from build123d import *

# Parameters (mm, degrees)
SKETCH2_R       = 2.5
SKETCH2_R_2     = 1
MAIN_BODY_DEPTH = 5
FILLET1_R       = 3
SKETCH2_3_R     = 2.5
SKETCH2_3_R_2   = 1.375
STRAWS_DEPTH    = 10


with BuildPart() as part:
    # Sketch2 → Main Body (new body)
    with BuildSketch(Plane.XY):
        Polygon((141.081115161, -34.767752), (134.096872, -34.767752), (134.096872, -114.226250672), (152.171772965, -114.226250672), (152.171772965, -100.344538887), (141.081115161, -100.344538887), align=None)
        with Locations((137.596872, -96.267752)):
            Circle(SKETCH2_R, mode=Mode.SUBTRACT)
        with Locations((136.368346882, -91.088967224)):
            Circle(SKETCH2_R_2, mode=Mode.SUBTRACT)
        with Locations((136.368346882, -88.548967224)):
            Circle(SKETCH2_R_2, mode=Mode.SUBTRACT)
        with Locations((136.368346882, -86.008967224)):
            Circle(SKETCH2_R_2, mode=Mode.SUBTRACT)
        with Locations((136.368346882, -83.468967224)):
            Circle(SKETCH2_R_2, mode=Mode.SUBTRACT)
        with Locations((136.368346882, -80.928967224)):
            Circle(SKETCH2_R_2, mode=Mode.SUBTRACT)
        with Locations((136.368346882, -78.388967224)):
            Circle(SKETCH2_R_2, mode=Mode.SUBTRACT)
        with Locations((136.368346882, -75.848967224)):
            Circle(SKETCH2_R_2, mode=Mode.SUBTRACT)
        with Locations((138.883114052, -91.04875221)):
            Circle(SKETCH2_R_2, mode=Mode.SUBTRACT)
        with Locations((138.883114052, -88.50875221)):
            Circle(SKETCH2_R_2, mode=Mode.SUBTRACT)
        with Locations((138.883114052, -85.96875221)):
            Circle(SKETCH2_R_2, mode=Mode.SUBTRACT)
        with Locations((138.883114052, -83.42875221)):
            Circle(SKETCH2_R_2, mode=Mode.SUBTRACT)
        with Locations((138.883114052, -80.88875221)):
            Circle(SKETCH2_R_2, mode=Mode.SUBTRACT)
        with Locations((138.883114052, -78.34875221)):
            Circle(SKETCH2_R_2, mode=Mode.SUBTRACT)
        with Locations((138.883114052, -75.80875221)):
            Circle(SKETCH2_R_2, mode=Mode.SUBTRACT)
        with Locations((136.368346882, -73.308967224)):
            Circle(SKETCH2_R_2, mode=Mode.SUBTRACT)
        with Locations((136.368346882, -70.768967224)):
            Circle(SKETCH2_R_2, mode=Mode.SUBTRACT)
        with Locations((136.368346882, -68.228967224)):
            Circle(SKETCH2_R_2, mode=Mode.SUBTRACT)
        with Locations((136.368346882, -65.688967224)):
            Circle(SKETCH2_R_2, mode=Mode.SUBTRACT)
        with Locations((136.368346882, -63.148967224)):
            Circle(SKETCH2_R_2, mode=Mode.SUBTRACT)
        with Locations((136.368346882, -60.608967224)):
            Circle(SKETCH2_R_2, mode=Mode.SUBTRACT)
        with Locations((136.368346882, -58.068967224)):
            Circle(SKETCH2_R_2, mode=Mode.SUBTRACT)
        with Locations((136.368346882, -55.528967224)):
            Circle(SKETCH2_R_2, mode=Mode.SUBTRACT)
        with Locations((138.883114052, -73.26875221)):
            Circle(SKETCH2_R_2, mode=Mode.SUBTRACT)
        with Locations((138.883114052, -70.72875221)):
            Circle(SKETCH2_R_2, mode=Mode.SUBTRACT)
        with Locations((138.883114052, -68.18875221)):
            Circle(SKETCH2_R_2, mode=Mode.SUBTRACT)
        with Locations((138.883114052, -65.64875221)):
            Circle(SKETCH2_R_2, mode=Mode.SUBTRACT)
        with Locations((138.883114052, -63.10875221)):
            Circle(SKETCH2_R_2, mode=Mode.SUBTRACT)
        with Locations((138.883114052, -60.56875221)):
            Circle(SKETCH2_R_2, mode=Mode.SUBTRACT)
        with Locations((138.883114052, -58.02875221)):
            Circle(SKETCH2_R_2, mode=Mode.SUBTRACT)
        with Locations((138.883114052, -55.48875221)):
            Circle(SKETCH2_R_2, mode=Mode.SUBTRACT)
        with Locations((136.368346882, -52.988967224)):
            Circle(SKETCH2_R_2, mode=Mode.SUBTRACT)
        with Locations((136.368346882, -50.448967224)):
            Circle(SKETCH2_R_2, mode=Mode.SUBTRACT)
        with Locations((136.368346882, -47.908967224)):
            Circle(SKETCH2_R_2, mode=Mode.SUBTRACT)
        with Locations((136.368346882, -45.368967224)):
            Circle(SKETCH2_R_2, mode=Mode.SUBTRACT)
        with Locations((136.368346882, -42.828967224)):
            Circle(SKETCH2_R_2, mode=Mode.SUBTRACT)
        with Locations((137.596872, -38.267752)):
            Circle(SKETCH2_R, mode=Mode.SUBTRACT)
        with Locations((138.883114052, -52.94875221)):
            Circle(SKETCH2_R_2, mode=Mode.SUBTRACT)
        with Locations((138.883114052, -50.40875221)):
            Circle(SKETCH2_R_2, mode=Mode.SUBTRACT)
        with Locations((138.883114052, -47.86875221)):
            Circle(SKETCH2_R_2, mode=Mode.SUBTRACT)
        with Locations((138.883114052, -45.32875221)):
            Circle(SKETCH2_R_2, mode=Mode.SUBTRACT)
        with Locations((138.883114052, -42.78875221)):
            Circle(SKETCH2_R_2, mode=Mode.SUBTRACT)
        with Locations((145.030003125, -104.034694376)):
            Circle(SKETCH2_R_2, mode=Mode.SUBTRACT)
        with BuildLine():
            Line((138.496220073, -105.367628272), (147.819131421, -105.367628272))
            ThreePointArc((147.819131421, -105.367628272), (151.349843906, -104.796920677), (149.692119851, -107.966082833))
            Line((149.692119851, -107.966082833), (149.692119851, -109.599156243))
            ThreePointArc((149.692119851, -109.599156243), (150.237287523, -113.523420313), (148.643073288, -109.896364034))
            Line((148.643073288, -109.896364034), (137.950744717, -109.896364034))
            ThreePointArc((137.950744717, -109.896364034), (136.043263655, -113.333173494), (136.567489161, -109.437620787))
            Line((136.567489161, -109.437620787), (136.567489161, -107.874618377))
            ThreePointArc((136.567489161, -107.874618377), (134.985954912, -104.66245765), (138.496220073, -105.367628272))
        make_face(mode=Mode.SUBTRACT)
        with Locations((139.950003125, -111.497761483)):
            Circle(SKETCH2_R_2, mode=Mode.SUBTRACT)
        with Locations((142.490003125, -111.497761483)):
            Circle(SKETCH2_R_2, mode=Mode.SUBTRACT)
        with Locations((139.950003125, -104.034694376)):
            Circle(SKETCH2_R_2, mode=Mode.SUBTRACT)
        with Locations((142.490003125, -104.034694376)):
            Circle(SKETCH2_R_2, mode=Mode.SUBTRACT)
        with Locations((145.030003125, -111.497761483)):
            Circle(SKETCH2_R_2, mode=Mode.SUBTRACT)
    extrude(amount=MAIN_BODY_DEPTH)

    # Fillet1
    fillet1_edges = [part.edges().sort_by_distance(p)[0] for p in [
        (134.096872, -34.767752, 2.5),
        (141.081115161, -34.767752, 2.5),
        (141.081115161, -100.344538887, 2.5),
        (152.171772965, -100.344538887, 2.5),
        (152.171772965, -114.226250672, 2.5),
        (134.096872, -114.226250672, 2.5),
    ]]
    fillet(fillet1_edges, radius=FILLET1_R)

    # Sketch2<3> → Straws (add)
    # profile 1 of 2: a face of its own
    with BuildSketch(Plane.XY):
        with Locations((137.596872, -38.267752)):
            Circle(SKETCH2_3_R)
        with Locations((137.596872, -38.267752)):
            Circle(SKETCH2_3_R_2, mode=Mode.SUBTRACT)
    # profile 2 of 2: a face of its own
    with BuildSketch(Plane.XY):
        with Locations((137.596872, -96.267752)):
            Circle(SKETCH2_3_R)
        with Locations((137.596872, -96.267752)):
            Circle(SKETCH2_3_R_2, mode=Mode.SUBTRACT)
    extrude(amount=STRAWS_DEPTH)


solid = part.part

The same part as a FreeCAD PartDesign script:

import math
import FreeCAD as App
import Part
import Sketcher
from FreeCAD import Vector
Q = App.Units.Quantity


def edges_at(feature, points):
    """Names of the edges that pass closest to the given points."""
    edges = feature.Shape.Edges
    near = lambda p: min(range(len(edges)), key=lambda i: edges[i].distToShape(Part.Vertex(*p))[0])
    return sorted({f"Edge{near(p) + 1}" for p in points})


def add_polygon(sketch, points):
    """Adds a closed chain of lines whose ends are joined by coincident constraints."""
    first, n = sketch.GeometryCount, len(points)
    for a, b in zip(points, points[1:] + points[:1]):
        sketch.addGeometry(Part.LineSegment(App.Vector(*a, 0), App.Vector(*b, 0)), False)
    for i in range(n):
        sketch.addConstraint(Sketcher.Constraint("Coincident", first + i, 2, first + (i + 1) % n, 1))

doc = App.newDocument("Part")
body = doc.addObject("PartDesign::Body", "Body")

# Sketch on XY plane
sketch1 = body.newObject("Sketcher::SketchObject", "Sketch")
sketch1.AttachmentSupport = (doc.getObject("XY_Plane"), [""])
sketch1.MapMode = "FlatFace"
add_polygon(sketch1, [(141.1, -34.8), (134.1, -34.8), (134.1, -114.2), (152.2, -114.2), (152.2, -100.3), (141.1, -100.3)])  # lines 0-5
sketch1.addGeometry(Part.Circle(Vector(137.6, -96.3, 0), Vector(0, 0, 1), 2.5), False)  # 6
sketch1.addGeometry(Part.Circle(Vector(140, -111.5, 0), Vector(0, 0, 1), 1), False)  # 7
sketch1.addGeometry(Part.Circle(Vector(140, -104, 0), Vector(0, 0, 1), 1), False)  # 8
sketch1.addGeometry(Part.Circle(Vector(142.5, -111.5, 0), Vector(0, 0, 1), 1), False)  # 9
sketch1.addGeometry(Part.Circle(Vector(142.5, -104, 0), Vector(0, 0, 1), 1), False)  # 10
sketch1.addGeometry(Part.Circle(Vector(136.4, -91.1, 0), Vector(0, 0, 1), 1), False)  # 11
sketch1.addGeometry(Part.Circle(Vector(136.4, -88.5, 0), Vector(0, 0, 1), 1), False)  # 12
sketch1.addGeometry(Part.Circle(Vector(136.4, -86, 0), Vector(0, 0, 1), 1), False)  # 13
sketch1.addGeometry(Part.Circle(Vector(136.4, -83.5, 0), Vector(0, 0, 1), 1), False)  # 14
sketch1.addGeometry(Part.Circle(Vector(136.4, -80.9, 0), Vector(0, 0, 1), 1), False)  # 15
sketch1.addGeometry(Part.Circle(Vector(136.4, -78.4, 0), Vector(0, 0, 1), 1), False)  # 16
sketch1.addGeometry(Part.Circle(Vector(136.4, -75.8, 0), Vector(0, 0, 1), 1), False)  # 17
sketch1.addGeometry(Part.Circle(Vector(138.9, -91, 0), Vector(0, 0, 1), 1), False)  # 18
sketch1.addGeometry(Part.Circle(Vector(138.9, -88.5, 0), Vector(0, 0, 1), 1), False)  # 19
sketch1.addGeometry(Part.Circle(Vector(138.9, -86, 0), Vector(0, 0, 1), 1), False)  # 20
sketch1.addGeometry(Part.Circle(Vector(138.9, -83.4, 0), Vector(0, 0, 1), 1), False)  # 21
sketch1.addGeometry(Part.Circle(Vector(138.9, -80.9, 0), Vector(0, 0, 1), 1), False)  # 22
sketch1.addGeometry(Part.Circle(Vector(138.9, -78.3, 0), Vector(0, 0, 1), 1), False)  # 23
sketch1.addGeometry(Part.Circle(Vector(138.9, -75.8, 0), Vector(0, 0, 1), 1), False)  # 24
sketch1.addGeometry(Part.ArcOfCircle(Part.Circle(Vector(136.6, -105.9, 0), Vector(0, 0, 1), 2), math.radians(15), math.radians(270)), False)  # 25
sketch1.addGeometry(Part.LineSegment(Vector(138.5, -105.4, 0), Vector(147.8, -105.4, 0)), False)  # 26
sketch1.addGeometry(Part.ArcOfCircle(Part.Circle(Vector(149.7, -106, 0), Vector(0, 0, 1), 2), math.radians(-91), math.radians(163)), False)  # 27
sketch1.addGeometry(Part.LineSegment(Vector(149.7, -108, 0), Vector(149.7, -109.6, 0)), False)  # 28
sketch1.addGeometry(Part.ArcOfCircle(Part.Circle(Vector(149.7, -111.6, 0), Vector(0, 0, 1), 2), math.radians(122), math.radians(450)), False)  # 29
sketch1.addGeometry(Part.LineSegment(Vector(148.6, -109.9, 0), Vector(138, -109.9, 0)), False)  # 30
sketch1.addGeometry(Part.ArcOfCircle(Part.Circle(Vector(136.7, -111.4, 0), Vector(0, 0, 1), 2), math.radians(93), math.radians(410)), False)  # 31
sketch1.addGeometry(Part.LineSegment(Vector(136.6, -109.4, 0), Vector(136.6, -107.9, 0)), False)  # 32
sketch1.addGeometry(Part.Circle(Vector(145, -111.5, 0), Vector(0, 0, 1), 1), False)  # 33
sketch1.addGeometry(Part.Circle(Vector(145, -104, 0), Vector(0, 0, 1), 1), False)  # 34
sketch1.addGeometry(Part.Circle(Vector(136.4, -73.3, 0), Vector(0, 0, 1), 1), False)  # 35
sketch1.addGeometry(Part.Circle(Vector(136.4, -70.8, 0), Vector(0, 0, 1), 1), False)  # 36
sketch1.addGeometry(Part.Circle(Vector(136.4, -68.2, 0), Vector(0, 0, 1), 1), False)  # 37
sketch1.addGeometry(Part.Circle(Vector(136.4, -65.7, 0), Vector(0, 0, 1), 1), False)  # 38
sketch1.addGeometry(Part.Circle(Vector(136.4, -63.1, 0), Vector(0, 0, 1), 1), False)  # 39
sketch1.addGeometry(Part.Circle(Vector(136.4, -60.6, 0), Vector(0, 0, 1), 1), False)  # 40
sketch1.addGeometry(Part.Circle(Vector(136.4, -58.1, 0), Vector(0, 0, 1), 1), False)  # 41
sketch1.addGeometry(Part.Circle(Vector(136.4, -55.5, 0), Vector(0, 0, 1), 1), False)  # 42
sketch1.addGeometry(Part.Circle(Vector(138.9, -73.3, 0), Vector(0, 0, 1), 1), False)  # 43
sketch1.addGeometry(Part.Circle(Vector(138.9, -70.7, 0), Vector(0, 0, 1), 1), False)  # 44
sketch1.addGeometry(Part.Circle(Vector(138.9, -68.2, 0), Vector(0, 0, 1), 1), False)  # 45
sketch1.addGeometry(Part.Circle(Vector(138.9, -65.6, 0), Vector(0, 0, 1), 1), False)  # 46
sketch1.addGeometry(Part.Circle(Vector(138.9, -63.1, 0), Vector(0, 0, 1), 1), False)  # 47
sketch1.addGeometry(Part.Circle(Vector(138.9, -60.6, 0), Vector(0, 0, 1), 1), False)  # 48
sketch1.addGeometry(Part.Circle(Vector(138.9, -58, 0), Vector(0, 0, 1), 1), False)  # 49
sketch1.addGeometry(Part.Circle(Vector(138.9, -55.5, 0), Vector(0, 0, 1), 1), False)  # 50
sketch1.addGeometry(Part.Circle(Vector(136.4, -53, 0), Vector(0, 0, 1), 1), False)  # 51
sketch1.addGeometry(Part.Circle(Vector(136.4, -50.4, 0), Vector(0, 0, 1), 1), False)  # 52
sketch1.addGeometry(Part.Circle(Vector(136.4, -47.9, 0), Vector(0, 0, 1), 1), False)  # 53
sketch1.addGeometry(Part.Circle(Vector(136.4, -45.4, 0), Vector(0, 0, 1), 1), False)  # 54
sketch1.addGeometry(Part.Circle(Vector(136.4, -42.8, 0), Vector(0, 0, 1), 1), False)  # 55
sketch1.addGeometry(Part.Circle(Vector(137.6, -38.3, 0), Vector(0, 0, 1), 2.5), False)  # 56
sketch1.addGeometry(Part.Circle(Vector(138.9, -52.9, 0), Vector(0, 0, 1), 1), False)  # 57
sketch1.addGeometry(Part.Circle(Vector(138.9, -50.4, 0), Vector(0, 0, 1), 1), False)  # 58
sketch1.addGeometry(Part.Circle(Vector(138.9, -47.9, 0), Vector(0, 0, 1), 1), False)  # 59
sketch1.addGeometry(Part.Circle(Vector(138.9, -45.3, 0), Vector(0, 0, 1), 1), False)  # 60
sketch1.addGeometry(Part.Circle(Vector(138.9, -42.8, 0), Vector(0, 0, 1), 1), False)  # 61
sketch1.addConstraint([
    Sketcher.Constraint("Coincident", 25, 1, 26, 1),
    Sketcher.Constraint("Coincident", 26, 2, 27, 2),
    Sketcher.Constraint("Coincident", 27, 1, 28, 1),
    Sketcher.Constraint("Coincident", 28, 2, 29, 2),
    Sketcher.Constraint("Coincident", 29, 1, 30, 1),
    Sketcher.Constraint("Coincident", 30, 2, 31, 2),
    Sketcher.Constraint("Coincident", 31, 1, 32, 1),
    Sketcher.Constraint("Coincident", 32, 2, 25, 2),
    Sketcher.Constraint("Horizontal", 0),
    Sketcher.Constraint("Vertical", 1),
    Sketcher.Constraint("Horizontal", 2),
    Sketcher.Constraint("Vertical", 3),
    Sketcher.Constraint("Horizontal", 4),
    Sketcher.Constraint("Vertical", 5),
    Sketcher.Constraint("Horizontal", 26),
    Sketcher.Constraint("Vertical", 28),
    Sketcher.Constraint("Horizontal", 30),
    Sketcher.Constraint("Vertical", 32),
    Sketcher.Constraint("Equal", 7, 8),
    Sketcher.Constraint("Equal", 8, 9),
    Sketcher.Constraint("Equal", 9, 10),
    Sketcher.Constraint("Equal", 10, 11),
    Sketcher.Constraint("Equal", 11, 12),
    Sketcher.Constraint("Equal", 12, 13),
    Sketcher.Constraint("Equal", 13, 14),
    Sketcher.Constraint("Equal", 14, 15),
    Sketcher.Constraint("Equal", 15, 16),
    Sketcher.Constraint("Equal", 16, 17),
    Sketcher.Constraint("Equal", 17, 18),
    Sketcher.Constraint("Equal", 18, 19),
    Sketcher.Constraint("Equal", 19, 20),
    Sketcher.Constraint("Equal", 20, 21),
    Sketcher.Constraint("Equal", 21, 22),
    Sketcher.Constraint("Equal", 22, 23),
    Sketcher.Constraint("Equal", 23, 24),
    Sketcher.Constraint("Equal", 27, 29),
    Sketcher.Constraint("Equal", 29, 31),
    Sketcher.Constraint("Equal", 24, 33),
    Sketcher.Constraint("Equal", 33, 34),
    Sketcher.Constraint("Equal", 34, 35),
    Sketcher.Constraint("Equal", 35, 36),
    Sketcher.Constraint("Equal", 36, 37),
    Sketcher.Constraint("Equal", 37, 38),
    Sketcher.Constraint("Equal", 38, 39),
    Sketcher.Constraint("Equal", 39, 40),
    Sketcher.Constraint("Equal", 40, 41),
    Sketcher.Constraint("Equal", 41, 42),
    Sketcher.Constraint("Equal", 42, 43),
    Sketcher.Constraint("Equal", 43, 44),
    Sketcher.Constraint("Equal", 44, 45),
    Sketcher.Constraint("Equal", 45, 46),
    Sketcher.Constraint("Equal", 46, 47),
    Sketcher.Constraint("Equal", 47, 48),
    Sketcher.Constraint("Equal", 48, 49),
    Sketcher.Constraint("Equal", 49, 50),
    Sketcher.Constraint("Equal", 50, 51),
    Sketcher.Constraint("Equal", 51, 52),
    Sketcher.Constraint("Equal", 52, 53),
    Sketcher.Constraint("Equal", 53, 54),
    Sketcher.Constraint("Equal", 54, 55),
    Sketcher.Constraint("Equal", 6, 56),
    Sketcher.Constraint("Equal", 55, 57),
    Sketcher.Constraint("Equal", 57, 58),
    Sketcher.Constraint("Equal", 58, 59),
    Sketcher.Constraint("Equal", 59, 60),
    Sketcher.Constraint("Equal", 60, 61),
    Sketcher.Constraint("Horizontal", 7, 3, 9, 3),
    Sketcher.Constraint("Horizontal", 8, 3, 10, 3),
    Sketcher.Constraint("Horizontal", 9, 3, 33, 3),
    Sketcher.Constraint("Horizontal", 10, 3, 34, 3),
    Sketcher.Constraint("Vertical", 7, 3, 8, 3),
    Sketcher.Constraint("Vertical", 9, 3, 10, 3),
    Sketcher.Constraint("Vertical", 11, 3, 12, 3),
    Sketcher.Constraint("Vertical", 12, 3, 13, 3),
    Sketcher.Constraint("Vertical", 13, 3, 14, 3),
    Sketcher.Constraint("Vertical", 14, 3, 15, 3),
    Sketcher.Constraint("Vertical", 15, 3, 16, 3),
    Sketcher.Constraint("Vertical", 16, 3, 17, 3),
    Sketcher.Constraint("Vertical", 18, 3, 19, 3),
    Sketcher.Constraint("Vertical", 19, 3, 20, 3),
    Sketcher.Constraint("Vertical", 20, 3, 21, 3),
    Sketcher.Constraint("Vertical", 21, 3, 22, 3),
    Sketcher.Constraint("Vertical", 22, 3, 23, 3),
    Sketcher.Constraint("Vertical", 23, 3, 24, 3),
    Sketcher.Constraint("Vertical", 33, 3, 34, 3),
    Sketcher.Constraint("Vertical", 17, 3, 35, 3),
    Sketcher.Constraint("Vertical", 35, 3, 36, 3),
    Sketcher.Constraint("Vertical", 36, 3, 37, 3),
    Sketcher.Constraint("Vertical", 37, 3, 38, 3),
    Sketcher.Constraint("Vertical", 38, 3, 39, 3),
    Sketcher.Constraint("Vertical", 39, 3, 40, 3),
    Sketcher.Constraint("Vertical", 40, 3, 41, 3),
    Sketcher.Constraint("Vertical", 41, 3, 42, 3),
    Sketcher.Constraint("Vertical", 24, 3, 43, 3),
    Sketcher.Constraint("Vertical", 43, 3, 44, 3),
    Sketcher.Constraint("Vertical", 44, 3, 45, 3),
    Sketcher.Constraint("Vertical", 45, 3, 46, 3),
    Sketcher.Constraint("Vertical", 46, 3, 47, 3),
    Sketcher.Constraint("Vertical", 47, 3, 48, 3),
    Sketcher.Constraint("Vertical", 48, 3, 49, 3),
    Sketcher.Constraint("Vertical", 49, 3, 50, 3),
    Sketcher.Constraint("Vertical", 42, 3, 51, 3),
    Sketcher.Constraint("Vertical", 51, 3, 52, 3),
    Sketcher.Constraint("Vertical", 52, 3, 53, 3),
    Sketcher.Constraint("Vertical", 53, 3, 54, 3),
    Sketcher.Constraint("Vertical", 54, 3, 55, 3),
    Sketcher.Constraint("Vertical", 6, 3, 56, 3),
    Sketcher.Constraint("Vertical", 50, 3, 57, 3),
    Sketcher.Constraint("Vertical", 57, 3, 58, 3),
    Sketcher.Constraint("Vertical", 58, 3, 59, 3),
    Sketcher.Constraint("Vertical", 59, 3, 60, 3),
    Sketcher.Constraint("Vertical", 60, 3, 61, 3),
    Sketcher.Constraint("Vertical", 29, 3, 27, 1),
    Sketcher.Constraint("Vertical", 25, 3, 31, 1),
    Sketcher.Constraint("Diameter", 6, Q("5 mm")),
    Sketcher.Constraint("Diameter", 7, Q("2 mm")),
    Sketcher.Constraint("Radius", 27, Q("2 mm")),
    Sketcher.Constraint("Radius", 25, Q("1.995421 mm")),
    Sketcher.Constraint("DistanceX", 2, 1, 2, 2, Q("18.074901 mm")),
    Sketcher.Constraint("DistanceY", 1, 2, 1, 1, Q("79.458499 mm")),
    Sketcher.Constraint("DistanceX", 26, 1, 26, 2, Q("9.322911 mm")),
    Sketcher.Constraint("DistanceX", 30, 2, 30, 1, Q("10.692329 mm")),
    Sketcher.Constraint("DistanceY", 3, 1, 3, 2, Q("13.881712 mm")),
    Sketcher.Constraint("DistanceX", 0, 2, 0, 1, Q("6.984243 mm")),
    Sketcher.Constraint("DistanceY", 28, 2, 28, 1, Q("1.633073 mm")),
    Sketcher.Constraint("DistanceY", 32, 1, 32, 2, Q("1.563002 mm")),
    Sketcher.Constraint("DistanceX", -1, 1, 6, 3, Q("137.596872 mm")),
    Sketcher.Constraint("DistanceY", 6, 3, -1, 1, Q("96.267752 mm")),
    Sketcher.Constraint("DistanceY", 7, 3, -1, 1, Q("111.497761 mm")),
    Sketcher.Constraint("DistanceX", -1, 1, 25, 3, Q("136.567489 mm")),
    Sketcher.Constraint("DistanceX", -1, 1, 29, 3, Q("149.69212 mm")),
    Sketcher.Constraint("DistanceX", -1, 1, 0, 2, Q("134.096872 mm")),
    Sketcher.Constraint("DistanceY", 1, 2, -1, 1, Q("114.226251 mm")),
    Sketcher.Constraint("DistanceX", -1, 1, 25, 1, Q("138.49622 mm")),
    Sketcher.Constraint("DistanceY", 25, 1, -1, 1, Q("105.367628 mm")),
    Sketcher.Constraint("DistanceX", -1, 1, 7, 3, Q("139.950003 mm")),
    Sketcher.Constraint("DistanceY", 8, 3, -1, 1, Q("104.034694 mm")),
    Sketcher.Constraint("DistanceX", -1, 1, 9, 3, Q("142.490003 mm")),
    Sketcher.Constraint("DistanceX", -1, 1, 11, 3, Q("136.368347 mm")),
    Sketcher.Constraint("DistanceY", 11, 3, -1, 1, Q("91.088967 mm")),
    Sketcher.Constraint("DistanceY", 12, 3, -1, 1, Q("88.548967 mm")),
    Sketcher.Constraint("DistanceY", 13, 3, -1, 1, Q("86.008967 mm")),
    Sketcher.Constraint("DistanceY", 14, 3, -1, 1, Q("83.468967 mm")),
    Sketcher.Constraint("DistanceY", 15, 3, -1, 1, Q("80.928967 mm")),
    Sketcher.Constraint("DistanceY", 16, 3, -1, 1, Q("78.388967 mm")),
    Sketcher.Constraint("DistanceY", 17, 3, -1, 1, Q("75.848967 mm")),
    Sketcher.Constraint("DistanceX", -1, 1, 18, 3, Q("138.883114 mm")),
    Sketcher.Constraint("DistanceY", 18, 3, -1, 1, Q("91.048752 mm")),
    Sketcher.Constraint("DistanceY", 19, 3, -1, 1, Q("88.508752 mm")),
    Sketcher.Constraint("DistanceY", 20, 3, -1, 1, Q("85.968752 mm")),
    Sketcher.Constraint("DistanceY", 21, 3, -1, 1, Q("83.428752 mm")),
    Sketcher.Constraint("DistanceY", 22, 3, -1, 1, Q("80.888752 mm")),
    Sketcher.Constraint("DistanceY", 23, 3, -1, 1, Q("78.348752 mm")),
    Sketcher.Constraint("DistanceY", 24, 3, -1, 1, Q("75.808752 mm")),
    Sketcher.Constraint("DistanceX", -1, 1, 27, 3, Q("149.727398 mm")),
    Sketcher.Constraint("DistanceX", -1, 1, 31, 3, Q("136.672826 mm")),
    Sketcher.Constraint("DistanceX", -1, 1, 33, 3, Q("145.030003 mm")),
    Sketcher.Constraint("DistanceY", 35, 3, -1, 1, Q("73.308967 mm")),
    Sketcher.Constraint("DistanceY", 36, 3, -1, 1, Q("70.768967 mm")),
    Sketcher.Constraint("DistanceY", 37, 3, -1, 1, Q("68.228967 mm")),
    Sketcher.Constraint("DistanceY", 38, 3, -1, 1, Q("65.688967 mm")),
    Sketcher.Constraint("DistanceY", 39, 3, -1, 1, Q("63.148967 mm")),
    Sketcher.Constraint("DistanceY", 40, 3, -1, 1, Q("60.608967 mm")),
    Sketcher.Constraint("DistanceY", 41, 3, -1, 1, Q("58.068967 mm")),
    Sketcher.Constraint("DistanceY", 42, 3, -1, 1, Q("55.528967 mm")),
    Sketcher.Constraint("DistanceY", 43, 3, -1, 1, Q("73.268752 mm")),
    Sketcher.Constraint("DistanceY", 44, 3, -1, 1, Q("70.728752 mm")),
    Sketcher.Constraint("DistanceY", 45, 3, -1, 1, Q("68.188752 mm")),
    Sketcher.Constraint("DistanceY", 46, 3, -1, 1, Q("65.648752 mm")),
    Sketcher.Constraint("DistanceY", 47, 3, -1, 1, Q("63.108752 mm")),
    Sketcher.Constraint("DistanceY", 48, 3, -1, 1, Q("60.568752 mm")),
    Sketcher.Constraint("DistanceY", 49, 3, -1, 1, Q("58.028752 mm")),
    Sketcher.Constraint("DistanceY", 50, 3, -1, 1, Q("55.488752 mm")),
    Sketcher.Constraint("DistanceY", 51, 3, -1, 1, Q("52.988967 mm")),
    Sketcher.Constraint("DistanceY", 52, 3, -1, 1, Q("50.448967 mm")),
    Sketcher.Constraint("DistanceY", 53, 3, -1, 1, Q("47.908967 mm")),
    Sketcher.Constraint("DistanceY", 54, 3, -1, 1, Q("45.368967 mm")),
    Sketcher.Constraint("DistanceY", 55, 3, -1, 1, Q("42.828967 mm")),
    Sketcher.Constraint("DistanceY", 56, 3, -1, 1, Q("38.267752 mm")),
    Sketcher.Constraint("DistanceY", 57, 3, -1, 1, Q("52.948752 mm")),
    Sketcher.Constraint("DistanceY", 58, 3, -1, 1, Q("50.408752 mm")),
    Sketcher.Constraint("DistanceY", 59, 3, -1, 1, Q("47.868752 mm")),
    Sketcher.Constraint("DistanceY", 60, 3, -1, 1, Q("45.328752 mm")),
    Sketcher.Constraint("DistanceY", 61, 3, -1, 1, Q("42.788752 mm")),
])
pad1 = body.newObject("PartDesign::Pad", "Pad")
pad1.Profile = sketch1
pad1.Length = 5
doc.recompute()

fillet = body.newObject("PartDesign::Fillet", "Fillet")
fillet.Base = (pad1, edges_at(pad1, [
    (134.097, -34.768, 2.5),
    (141.081, -34.768, 2.5),
    (141.081, -100.345, 2.5),
    (152.172, -100.345, 2.5),
    (152.172, -114.226, 2.5),
    (134.097, -114.226, 2.5),
]))
fillet.Radius = 3

# Sketch on XY plane
sketch2 = body.newObject("Sketcher::SketchObject", "Sketch001")
sketch2.AttachmentSupport = (doc.getObject("XY_Plane"), [""])
sketch2.MapMode = "FlatFace"
sketch2.addGeometry([
    Part.Circle(Vector(137.6, -38.3, 0), Vector(0, 0, 1), 2.5),
    Part.Circle(Vector(137.6, -38.3, 0), Vector(0, 0, 1), 1.4),
    Part.Circle(Vector(137.6, -96.3, 0), Vector(0, 0, 1), 2.5),
    Part.Circle(Vector(137.6, -96.3, 0), Vector(0, 0, 1), 1.4),
], False)
sketch2.addConstraint([
    Sketcher.Constraint("Coincident", 1, 3, 0, 3),
    Sketcher.Constraint("Coincident", 3, 3, 2, 3),
    Sketcher.Constraint("Equal", 0, 2),
    Sketcher.Constraint("Equal", 1, 3),
    Sketcher.Constraint("Vertical", 1, 3, 2, 3),
    Sketcher.Constraint("Diameter", 0, Q("5 mm")),
    Sketcher.Constraint("Diameter", 1, Q("2.75 mm")),
    Sketcher.Constraint("DistanceY", 2, 3, 0, 3, Q("58 mm")),
    Sketcher.Constraint("DistanceX", -1, 1, 0, 3, Q("137.596872 mm")),
    Sketcher.Constraint("DistanceY", 2, 3, -1, 1, Q("96.267752 mm")),
])
pad2 = body.newObject("PartDesign::Pad", "Pad001")
pad2.Profile = sketch2
pad2.Length = 10

doc.recompute()
